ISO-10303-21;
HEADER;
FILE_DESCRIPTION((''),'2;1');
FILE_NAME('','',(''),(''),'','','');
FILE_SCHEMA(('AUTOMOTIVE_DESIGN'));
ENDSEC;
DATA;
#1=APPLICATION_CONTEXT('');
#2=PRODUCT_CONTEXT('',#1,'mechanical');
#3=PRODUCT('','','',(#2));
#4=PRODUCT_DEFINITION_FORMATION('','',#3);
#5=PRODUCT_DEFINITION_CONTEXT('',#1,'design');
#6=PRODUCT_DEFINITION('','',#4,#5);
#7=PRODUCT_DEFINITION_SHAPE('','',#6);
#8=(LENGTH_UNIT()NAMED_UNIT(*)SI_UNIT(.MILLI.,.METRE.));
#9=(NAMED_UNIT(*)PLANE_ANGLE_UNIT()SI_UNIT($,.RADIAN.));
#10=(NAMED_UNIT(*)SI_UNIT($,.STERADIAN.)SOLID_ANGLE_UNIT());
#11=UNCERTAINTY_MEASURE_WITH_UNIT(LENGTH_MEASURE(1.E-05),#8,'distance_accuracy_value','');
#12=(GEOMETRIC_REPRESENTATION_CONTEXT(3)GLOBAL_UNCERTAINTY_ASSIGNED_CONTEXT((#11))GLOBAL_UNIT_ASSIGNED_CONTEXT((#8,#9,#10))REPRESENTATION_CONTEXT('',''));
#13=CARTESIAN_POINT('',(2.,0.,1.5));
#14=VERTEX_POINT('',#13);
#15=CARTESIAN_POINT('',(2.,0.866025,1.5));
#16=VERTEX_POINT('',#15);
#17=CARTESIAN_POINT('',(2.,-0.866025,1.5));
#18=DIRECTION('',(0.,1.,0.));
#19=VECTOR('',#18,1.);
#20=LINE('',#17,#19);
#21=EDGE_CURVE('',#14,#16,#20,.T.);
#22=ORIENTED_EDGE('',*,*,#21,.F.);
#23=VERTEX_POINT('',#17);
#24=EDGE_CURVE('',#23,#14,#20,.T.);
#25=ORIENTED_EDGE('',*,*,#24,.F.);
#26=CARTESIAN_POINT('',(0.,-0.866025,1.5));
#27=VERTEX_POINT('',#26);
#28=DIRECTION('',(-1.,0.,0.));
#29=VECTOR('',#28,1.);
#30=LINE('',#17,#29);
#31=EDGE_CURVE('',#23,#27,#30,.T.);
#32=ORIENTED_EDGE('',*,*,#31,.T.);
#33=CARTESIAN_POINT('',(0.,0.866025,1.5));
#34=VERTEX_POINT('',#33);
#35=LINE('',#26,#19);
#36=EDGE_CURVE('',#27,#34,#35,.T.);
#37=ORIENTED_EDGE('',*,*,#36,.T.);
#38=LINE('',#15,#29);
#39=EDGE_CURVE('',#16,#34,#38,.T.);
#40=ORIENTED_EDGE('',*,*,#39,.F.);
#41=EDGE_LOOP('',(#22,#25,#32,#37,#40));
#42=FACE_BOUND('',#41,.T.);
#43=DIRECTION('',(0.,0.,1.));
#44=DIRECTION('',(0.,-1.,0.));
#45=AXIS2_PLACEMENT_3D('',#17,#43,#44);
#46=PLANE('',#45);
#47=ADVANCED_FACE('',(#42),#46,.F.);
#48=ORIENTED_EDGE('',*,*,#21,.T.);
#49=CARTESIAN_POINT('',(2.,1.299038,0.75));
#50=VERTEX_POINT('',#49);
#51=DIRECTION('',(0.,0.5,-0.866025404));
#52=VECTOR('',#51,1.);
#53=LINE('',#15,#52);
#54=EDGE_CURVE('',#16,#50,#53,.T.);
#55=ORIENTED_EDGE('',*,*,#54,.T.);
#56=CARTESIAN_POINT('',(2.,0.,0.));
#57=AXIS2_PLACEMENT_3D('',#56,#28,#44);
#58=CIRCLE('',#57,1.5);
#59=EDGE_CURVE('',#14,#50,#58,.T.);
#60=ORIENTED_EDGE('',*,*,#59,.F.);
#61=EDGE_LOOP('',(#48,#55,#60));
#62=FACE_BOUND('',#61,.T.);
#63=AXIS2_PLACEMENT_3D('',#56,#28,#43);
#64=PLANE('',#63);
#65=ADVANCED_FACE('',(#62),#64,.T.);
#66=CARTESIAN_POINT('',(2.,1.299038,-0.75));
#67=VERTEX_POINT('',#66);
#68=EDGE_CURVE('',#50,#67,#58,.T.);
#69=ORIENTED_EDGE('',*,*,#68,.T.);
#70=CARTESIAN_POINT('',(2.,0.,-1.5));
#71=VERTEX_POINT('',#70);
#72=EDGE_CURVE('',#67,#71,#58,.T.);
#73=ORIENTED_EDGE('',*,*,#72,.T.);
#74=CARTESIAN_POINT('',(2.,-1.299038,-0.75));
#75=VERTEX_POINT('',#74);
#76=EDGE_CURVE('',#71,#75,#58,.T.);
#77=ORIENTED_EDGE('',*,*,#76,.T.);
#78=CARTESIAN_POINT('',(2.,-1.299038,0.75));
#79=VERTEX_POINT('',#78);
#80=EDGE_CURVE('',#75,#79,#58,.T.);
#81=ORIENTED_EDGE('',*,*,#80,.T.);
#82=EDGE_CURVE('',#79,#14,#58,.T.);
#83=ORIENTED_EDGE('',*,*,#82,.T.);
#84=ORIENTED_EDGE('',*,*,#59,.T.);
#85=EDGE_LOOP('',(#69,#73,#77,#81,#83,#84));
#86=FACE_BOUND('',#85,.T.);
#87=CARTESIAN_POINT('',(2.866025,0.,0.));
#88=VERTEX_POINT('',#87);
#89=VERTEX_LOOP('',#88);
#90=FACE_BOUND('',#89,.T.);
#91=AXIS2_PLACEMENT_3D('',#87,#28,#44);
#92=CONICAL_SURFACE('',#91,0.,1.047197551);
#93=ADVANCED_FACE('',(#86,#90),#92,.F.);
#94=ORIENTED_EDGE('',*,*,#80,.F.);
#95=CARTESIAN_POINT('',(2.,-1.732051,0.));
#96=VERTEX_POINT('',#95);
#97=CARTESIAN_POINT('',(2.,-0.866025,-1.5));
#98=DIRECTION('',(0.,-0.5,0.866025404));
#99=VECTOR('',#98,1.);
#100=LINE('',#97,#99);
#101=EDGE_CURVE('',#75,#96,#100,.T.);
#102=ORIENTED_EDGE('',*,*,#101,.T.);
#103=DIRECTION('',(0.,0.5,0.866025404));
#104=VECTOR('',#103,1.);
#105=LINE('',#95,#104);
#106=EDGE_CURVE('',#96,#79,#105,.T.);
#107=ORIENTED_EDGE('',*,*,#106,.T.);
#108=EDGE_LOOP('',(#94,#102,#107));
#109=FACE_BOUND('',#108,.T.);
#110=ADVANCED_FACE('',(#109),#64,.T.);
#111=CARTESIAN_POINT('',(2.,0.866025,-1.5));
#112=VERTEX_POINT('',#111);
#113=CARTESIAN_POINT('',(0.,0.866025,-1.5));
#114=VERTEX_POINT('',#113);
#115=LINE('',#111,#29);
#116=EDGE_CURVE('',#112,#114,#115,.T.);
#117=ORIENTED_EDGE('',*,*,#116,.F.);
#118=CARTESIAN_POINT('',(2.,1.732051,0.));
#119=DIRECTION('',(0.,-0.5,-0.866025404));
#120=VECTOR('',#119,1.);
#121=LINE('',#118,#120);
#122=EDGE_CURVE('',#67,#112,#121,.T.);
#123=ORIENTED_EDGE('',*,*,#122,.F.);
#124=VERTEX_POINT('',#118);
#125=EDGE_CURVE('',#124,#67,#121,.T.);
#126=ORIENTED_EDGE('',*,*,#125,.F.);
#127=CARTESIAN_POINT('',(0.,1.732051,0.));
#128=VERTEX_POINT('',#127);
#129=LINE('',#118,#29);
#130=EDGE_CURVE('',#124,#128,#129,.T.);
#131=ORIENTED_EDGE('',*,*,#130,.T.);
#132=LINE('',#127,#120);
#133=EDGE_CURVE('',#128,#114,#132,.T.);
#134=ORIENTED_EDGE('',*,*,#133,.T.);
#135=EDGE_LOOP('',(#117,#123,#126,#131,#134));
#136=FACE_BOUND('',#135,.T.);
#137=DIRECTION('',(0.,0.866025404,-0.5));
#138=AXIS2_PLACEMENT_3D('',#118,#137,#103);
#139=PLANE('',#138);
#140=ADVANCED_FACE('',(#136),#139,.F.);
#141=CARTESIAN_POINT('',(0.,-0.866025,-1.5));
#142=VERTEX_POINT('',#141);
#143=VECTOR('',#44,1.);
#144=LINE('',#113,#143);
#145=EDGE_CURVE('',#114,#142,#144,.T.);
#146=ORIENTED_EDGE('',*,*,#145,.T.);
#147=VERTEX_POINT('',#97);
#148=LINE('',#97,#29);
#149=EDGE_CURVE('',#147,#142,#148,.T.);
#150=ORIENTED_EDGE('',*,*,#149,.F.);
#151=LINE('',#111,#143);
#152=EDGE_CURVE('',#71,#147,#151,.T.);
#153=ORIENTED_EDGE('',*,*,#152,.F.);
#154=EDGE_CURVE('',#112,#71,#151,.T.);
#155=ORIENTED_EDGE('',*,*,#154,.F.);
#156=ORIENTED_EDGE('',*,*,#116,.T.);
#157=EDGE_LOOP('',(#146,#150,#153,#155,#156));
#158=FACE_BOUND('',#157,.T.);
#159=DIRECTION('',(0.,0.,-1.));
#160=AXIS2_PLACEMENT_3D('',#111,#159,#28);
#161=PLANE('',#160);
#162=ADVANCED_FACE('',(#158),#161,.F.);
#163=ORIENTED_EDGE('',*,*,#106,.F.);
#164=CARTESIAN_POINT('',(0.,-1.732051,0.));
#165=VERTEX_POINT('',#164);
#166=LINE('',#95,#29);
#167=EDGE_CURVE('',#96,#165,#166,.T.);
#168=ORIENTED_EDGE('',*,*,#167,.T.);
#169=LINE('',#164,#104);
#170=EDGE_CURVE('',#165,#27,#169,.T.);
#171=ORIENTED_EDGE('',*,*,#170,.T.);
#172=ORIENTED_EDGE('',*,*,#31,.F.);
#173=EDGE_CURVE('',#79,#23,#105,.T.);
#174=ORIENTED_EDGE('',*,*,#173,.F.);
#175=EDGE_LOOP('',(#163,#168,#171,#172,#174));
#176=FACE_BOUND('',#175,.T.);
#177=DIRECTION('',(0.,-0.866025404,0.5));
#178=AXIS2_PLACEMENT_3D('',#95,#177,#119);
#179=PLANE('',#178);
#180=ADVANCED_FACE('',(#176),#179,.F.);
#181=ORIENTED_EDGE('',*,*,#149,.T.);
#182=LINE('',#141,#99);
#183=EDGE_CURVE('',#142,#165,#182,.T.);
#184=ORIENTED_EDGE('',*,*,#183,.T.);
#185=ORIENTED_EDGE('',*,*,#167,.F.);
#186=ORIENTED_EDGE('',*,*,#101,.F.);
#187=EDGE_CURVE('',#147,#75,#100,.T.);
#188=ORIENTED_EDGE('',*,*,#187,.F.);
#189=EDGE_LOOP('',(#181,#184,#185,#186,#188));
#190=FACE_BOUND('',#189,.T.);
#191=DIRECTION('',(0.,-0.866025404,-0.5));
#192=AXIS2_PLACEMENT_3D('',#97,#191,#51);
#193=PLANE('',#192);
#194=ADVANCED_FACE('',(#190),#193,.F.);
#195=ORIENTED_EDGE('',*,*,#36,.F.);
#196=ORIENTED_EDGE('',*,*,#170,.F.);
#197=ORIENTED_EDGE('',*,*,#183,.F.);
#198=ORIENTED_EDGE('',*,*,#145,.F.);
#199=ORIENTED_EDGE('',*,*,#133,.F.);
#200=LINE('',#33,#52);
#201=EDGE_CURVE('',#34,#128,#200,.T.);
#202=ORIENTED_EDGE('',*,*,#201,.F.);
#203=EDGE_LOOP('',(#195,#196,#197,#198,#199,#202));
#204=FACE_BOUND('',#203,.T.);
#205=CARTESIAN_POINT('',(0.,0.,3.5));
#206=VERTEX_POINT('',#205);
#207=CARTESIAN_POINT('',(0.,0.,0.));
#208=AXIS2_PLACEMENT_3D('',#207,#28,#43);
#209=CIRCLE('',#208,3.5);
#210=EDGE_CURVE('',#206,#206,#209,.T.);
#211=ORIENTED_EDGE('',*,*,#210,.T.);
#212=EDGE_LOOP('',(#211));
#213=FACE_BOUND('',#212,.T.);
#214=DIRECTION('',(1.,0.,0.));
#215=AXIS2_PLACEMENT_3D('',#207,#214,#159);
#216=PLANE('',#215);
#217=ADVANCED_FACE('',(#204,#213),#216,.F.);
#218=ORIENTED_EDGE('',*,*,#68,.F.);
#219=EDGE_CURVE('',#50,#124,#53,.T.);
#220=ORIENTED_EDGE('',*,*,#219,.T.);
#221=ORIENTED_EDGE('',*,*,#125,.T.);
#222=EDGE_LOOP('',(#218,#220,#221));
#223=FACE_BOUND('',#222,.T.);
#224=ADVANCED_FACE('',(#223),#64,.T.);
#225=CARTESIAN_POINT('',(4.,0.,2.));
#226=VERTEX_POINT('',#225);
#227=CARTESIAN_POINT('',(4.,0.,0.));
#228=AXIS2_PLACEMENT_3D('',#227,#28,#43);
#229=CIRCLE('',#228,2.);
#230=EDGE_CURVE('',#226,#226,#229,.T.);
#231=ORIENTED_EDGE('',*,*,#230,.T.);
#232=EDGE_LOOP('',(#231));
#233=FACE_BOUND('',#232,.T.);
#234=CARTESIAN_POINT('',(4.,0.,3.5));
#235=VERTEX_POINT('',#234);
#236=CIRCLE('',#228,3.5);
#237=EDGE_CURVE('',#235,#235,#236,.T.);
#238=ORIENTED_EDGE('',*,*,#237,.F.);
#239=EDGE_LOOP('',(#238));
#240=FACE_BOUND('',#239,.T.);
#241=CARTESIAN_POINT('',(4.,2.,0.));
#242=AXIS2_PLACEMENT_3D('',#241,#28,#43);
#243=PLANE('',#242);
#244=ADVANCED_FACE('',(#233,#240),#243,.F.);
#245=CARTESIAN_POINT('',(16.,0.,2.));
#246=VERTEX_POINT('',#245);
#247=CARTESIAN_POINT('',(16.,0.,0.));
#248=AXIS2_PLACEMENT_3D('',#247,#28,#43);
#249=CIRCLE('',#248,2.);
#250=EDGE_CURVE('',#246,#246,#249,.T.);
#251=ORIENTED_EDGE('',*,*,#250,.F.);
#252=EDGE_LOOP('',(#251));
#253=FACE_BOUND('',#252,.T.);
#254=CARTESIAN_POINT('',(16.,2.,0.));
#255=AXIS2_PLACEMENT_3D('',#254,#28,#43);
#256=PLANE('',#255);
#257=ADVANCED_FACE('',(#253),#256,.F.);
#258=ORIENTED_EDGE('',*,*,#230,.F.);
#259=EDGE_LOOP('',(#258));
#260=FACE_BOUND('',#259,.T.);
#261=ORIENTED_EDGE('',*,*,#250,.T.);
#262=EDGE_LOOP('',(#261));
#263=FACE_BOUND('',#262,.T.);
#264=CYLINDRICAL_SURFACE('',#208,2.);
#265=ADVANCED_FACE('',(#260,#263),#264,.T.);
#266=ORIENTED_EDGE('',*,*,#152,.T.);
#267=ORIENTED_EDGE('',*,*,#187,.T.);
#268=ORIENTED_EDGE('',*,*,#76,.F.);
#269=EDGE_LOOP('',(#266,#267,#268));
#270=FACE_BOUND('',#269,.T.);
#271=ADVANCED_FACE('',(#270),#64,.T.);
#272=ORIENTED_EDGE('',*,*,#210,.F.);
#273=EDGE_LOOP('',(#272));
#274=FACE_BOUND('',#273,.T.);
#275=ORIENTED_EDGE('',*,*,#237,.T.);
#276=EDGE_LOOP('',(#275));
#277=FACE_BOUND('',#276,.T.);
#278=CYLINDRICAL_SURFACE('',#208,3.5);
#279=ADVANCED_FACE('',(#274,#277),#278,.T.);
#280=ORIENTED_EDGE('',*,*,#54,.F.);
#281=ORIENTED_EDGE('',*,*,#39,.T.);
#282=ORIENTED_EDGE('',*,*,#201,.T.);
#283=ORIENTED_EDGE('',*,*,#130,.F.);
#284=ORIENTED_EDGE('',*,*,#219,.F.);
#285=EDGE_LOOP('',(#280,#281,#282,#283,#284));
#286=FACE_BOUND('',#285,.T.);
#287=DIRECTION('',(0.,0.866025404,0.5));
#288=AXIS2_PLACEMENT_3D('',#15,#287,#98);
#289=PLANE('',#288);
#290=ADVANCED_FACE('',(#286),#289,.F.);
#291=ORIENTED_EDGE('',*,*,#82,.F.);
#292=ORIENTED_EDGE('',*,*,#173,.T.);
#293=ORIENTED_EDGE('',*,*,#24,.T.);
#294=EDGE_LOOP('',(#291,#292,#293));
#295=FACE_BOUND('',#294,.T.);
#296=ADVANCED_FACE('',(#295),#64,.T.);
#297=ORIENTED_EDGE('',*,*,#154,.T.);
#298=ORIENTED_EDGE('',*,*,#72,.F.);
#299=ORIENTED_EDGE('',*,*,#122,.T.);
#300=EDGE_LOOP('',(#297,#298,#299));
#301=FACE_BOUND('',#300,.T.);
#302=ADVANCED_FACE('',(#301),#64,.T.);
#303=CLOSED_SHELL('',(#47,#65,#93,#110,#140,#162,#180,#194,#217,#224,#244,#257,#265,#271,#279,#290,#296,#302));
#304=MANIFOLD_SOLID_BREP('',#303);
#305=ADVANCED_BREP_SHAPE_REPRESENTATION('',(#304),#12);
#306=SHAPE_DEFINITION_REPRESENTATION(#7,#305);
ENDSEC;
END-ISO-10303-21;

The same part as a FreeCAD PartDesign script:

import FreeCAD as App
import Part
import Sketcher
from FreeCAD import Vector
Q = App.Units.Quantity


def add_polygon(sketch, points):
    """Adds a closed chain of lines whose ends are joined by coincident constraints."""
    first, n = sketch.GeometryCount, len(points)
    for a, b in zip(points, points[1:] + points[:1]):
        sketch.addGeometry(Part.LineSegment(App.Vector(*a, 0), App.Vector(*b, 0)), False)
    for i in range(n):
        sketch.addConstraint(Sketcher.Constraint("Coincident", first + i, 2, first + (i + 1) % n, 1))

doc = App.newDocument("Part")
body = doc.addObject("PartDesign::Body", "Body")

sketch1 = body.newObject("Sketcher::SketchObject", "Sketch")
sketch1.AttachmentSupport = (doc.getObject("XY_Plane"), [""])
sketch1.MapMode = "FlatFace"
add_polygon(sketch1, [(0, 3.5), (0, 0), (16, 0), (16, 2), (4, 2), (4, 3.5)])
sketch1.addConstraint(Sketcher.Constraint("Vertical", 0))
sketch1.addConstraint(Sketcher.Constraint("Horizontal", 1))
sketch1.addConstraint(Sketcher.Constraint("Vertical", 2))
sketch1.addConstraint(Sketcher.Constraint("Horizontal", 3))
sketch1.addConstraint(Sketcher.Constraint("Vertical", 4))
sketch1.addConstraint(Sketcher.Constraint("Horizontal", 5))
sketch1.addConstraint(Sketcher.Constraint("Coincident", 0, 2, -1, 1))
sketch1.addConstraint(Sketcher.Constraint("DistanceX", 1, 1, 1, 2, 16.0))
sketch1.addConstraint(Sketcher.Constraint("DistanceX", 3, 2, 3, 1, 12.0))
sketch1.addConstraint(Sketcher.Constraint("DistanceY", 2, 1, 2, 2, 2.0))
sketch1.addConstraint(Sketcher.Constraint("DistanceY", 0, 2, 0, 1, 3.5))
revolution = body.newObject("PartDesign::Revolution", "Revolution")
revolution.Profile = sketch1
revolution.ReferenceAxis = (sketch1, ["H_Axis"])
revolution.Angle = 360

sketch2 = body.newObject("Sketcher::SketchObject", "Sketch001")
sketch2.AttachmentSupport = (doc.getObject("XY_Plane"), [""])
sketch2.MapMode = "FlatFace"
add_polygon(sketch2, [(2, 1.5), (0, 1.5), (0, 0), (2.9, 0)])
sketch2.addConstraint(Sketcher.Constraint("Horizontal", 0))
sketch2.addConstraint(Sketcher.Constraint("Vertical", 1))
sketch2.addConstraint(Sketcher.Constraint("Horizontal", 2))
sketch2.addConstraint(Sketcher.Constraint("Coincident", 1, 2, -1, 1))
sketch2.addConstraint(Sketcher.Constraint("DistanceX", 0, 2, 0, 1, 2.0))
sketch2.addConstraint(Sketcher.Constraint("Angle", 3, Q("120 deg")))
sketch2.addConstraint(Sketcher.Constraint("DistanceY", 1, 2, 1, 1, 1.5))
groove = body.newObject("PartDesign::Groove", "Groove")
groove.Profile = sketch2
groove.ReferenceAxis = (sketch2, ["H_Axis"])
groove.Angle = 360

sketch3 = body.newObject("Sketcher::SketchObject", "Sketch002")
sketch3.AttachmentSupport = (doc.getObject("YZ_Plane"), [""])
sketch3.MapMode = "FlatFace"
add_polygon(sketch3, [(-1.7, 0), (-0.9, 1.5), (0.9, 1.5), (1.7, 0), (0.9, -1.5), (-0.9, -1.5)])
sketch3.addConstraint(Sketcher.Constraint("Horizontal", 1))
sketch3.addConstraint(Sketcher.Constraint("Horizontal", 4))
sketch3.addConstraint(Sketcher.Constraint("Symmetric", 0, 2, 3, 2, -1, 1))
sketch3.addConstraint(Sketcher.Constraint("Symmetric", 2, 2, 5, 2, -1, 1))
sketch3.addConstraint(Sketcher.Constraint("PointOnObject", 2, 2, -1))
sketch3.addConstraint(Sketcher.Constraint("Parallel", 2, 5))
sketch3.addConstraint(Sketcher.Constraint("Vertical", 1, 2, 3, 2))
sketch3.addConstraint(Sketcher.Constraint("Angle", 0, Q("60 deg")))
sketch3.addConstraint(Sketcher.Constraint("DistanceY", 3, 2, 1, 2, 3.0))
sketch3.addConstraint(Sketcher.Constraint("DistanceX", 1, 1, 1, 2, 1.732051))
pocket1 = body.newObject("PartDesign::Pocket", "Pocket")
pocket1.Profile = sketch3
pocket1.Length = 2
pocket1.Reversed = True

doc.recompute()
